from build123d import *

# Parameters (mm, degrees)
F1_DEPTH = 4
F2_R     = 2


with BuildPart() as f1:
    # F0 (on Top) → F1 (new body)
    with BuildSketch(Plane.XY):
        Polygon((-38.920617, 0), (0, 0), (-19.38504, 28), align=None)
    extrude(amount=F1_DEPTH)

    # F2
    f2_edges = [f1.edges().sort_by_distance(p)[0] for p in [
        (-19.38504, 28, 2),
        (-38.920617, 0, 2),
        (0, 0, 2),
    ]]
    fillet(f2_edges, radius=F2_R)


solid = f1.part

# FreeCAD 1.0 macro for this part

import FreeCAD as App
import Part
import Sketcher

V = App.Vector


def edges_at(feature, points):
    """Names of the edges that pass closest to the given points."""
    edges = feature.Shape.Edges
    near = lambda p: min(range(len(edges)), key=lambda i: edges[i].distToShape(Part.Vertex(*p))[0])
    return sorted({f"Edge{near(p) + 1}" for p in points})

doc = App.newDocument("Part")
params = doc.addObject("Spreadsheet::Sheet", "Params")
for row, (alias, value) in enumerate([
    ("pad1_length", "4 mm"),
    ("fillet_radius", "2 mm"),
], start=1):
    params.set(f"A{row}", alias)
    params.set(f"B{row}", "=" + value)
    params.setAlias(f"B{row}", alias)

body = doc.addObject("PartDesign::Body", "Body")

# Sketch on XY plane
sketch1 = body.newObject("Sketcher::SketchObject", "Sketch")
sketch1.AttachmentSupport = (doc.getObject("XY_Plane"), [""])
sketch1.MapMode = "FlatFace"
sketch1.addGeometry(Part.LineSegment(V(-38.920617, 0, 0), V(0, 0, 0)), False)
sketch1.addGeometry(Part.LineSegment(V(0, 0, 0), V(-19.38504, 28, 0)), False)
sketch1.addGeometry(Part.LineSegment(V(-19.38504, 28, 0), V(-38.920617, 0, 0)), False)
sketch1.addConstraint(Sketcher.Constraint("Coincident", 0, 2, 1, 1))
sketch1.addConstraint(Sketcher.Constraint("Coincident", 1, 2, 2, 1))
sketch1.addConstraint(Sketcher.Constraint("Coincident", 2, 2, 0, 1))
sketch1.addConstraint(Sketcher.Constraint("Horizontal", 0))
sketch1.addConstraint(Sketcher.Constraint("Coincident", 0, 2, -1, 1))
sketch1.addConstraint(Sketcher.Constraint("DistanceY", -1, 1, 1, 2, 28.0))
sketch1.addConstraint(Sketcher.Constraint("Distance", 1, 34.05554))
sketch1.addConstraint(Sketcher.Constraint("DistanceX", 0, 1, 0, 2, 38.920617))
pad1 = body.newObject("PartDesign::Pad", "Pad")
pad1.Profile = sketch1
pad1.setExpression("Length", "Params.pad1_length")
doc.recompute()

fillet = body.newObject("PartDesign::Fillet", "Fillet")
fillet.Base = (pad1, edges_at(pad1, [(-19.385, 28, 2), (-38.921, 0, 2), (0, 0, 2)]))
fillet.setExpression("Radius", "Params.fillet_radius")

doc.recompute()
